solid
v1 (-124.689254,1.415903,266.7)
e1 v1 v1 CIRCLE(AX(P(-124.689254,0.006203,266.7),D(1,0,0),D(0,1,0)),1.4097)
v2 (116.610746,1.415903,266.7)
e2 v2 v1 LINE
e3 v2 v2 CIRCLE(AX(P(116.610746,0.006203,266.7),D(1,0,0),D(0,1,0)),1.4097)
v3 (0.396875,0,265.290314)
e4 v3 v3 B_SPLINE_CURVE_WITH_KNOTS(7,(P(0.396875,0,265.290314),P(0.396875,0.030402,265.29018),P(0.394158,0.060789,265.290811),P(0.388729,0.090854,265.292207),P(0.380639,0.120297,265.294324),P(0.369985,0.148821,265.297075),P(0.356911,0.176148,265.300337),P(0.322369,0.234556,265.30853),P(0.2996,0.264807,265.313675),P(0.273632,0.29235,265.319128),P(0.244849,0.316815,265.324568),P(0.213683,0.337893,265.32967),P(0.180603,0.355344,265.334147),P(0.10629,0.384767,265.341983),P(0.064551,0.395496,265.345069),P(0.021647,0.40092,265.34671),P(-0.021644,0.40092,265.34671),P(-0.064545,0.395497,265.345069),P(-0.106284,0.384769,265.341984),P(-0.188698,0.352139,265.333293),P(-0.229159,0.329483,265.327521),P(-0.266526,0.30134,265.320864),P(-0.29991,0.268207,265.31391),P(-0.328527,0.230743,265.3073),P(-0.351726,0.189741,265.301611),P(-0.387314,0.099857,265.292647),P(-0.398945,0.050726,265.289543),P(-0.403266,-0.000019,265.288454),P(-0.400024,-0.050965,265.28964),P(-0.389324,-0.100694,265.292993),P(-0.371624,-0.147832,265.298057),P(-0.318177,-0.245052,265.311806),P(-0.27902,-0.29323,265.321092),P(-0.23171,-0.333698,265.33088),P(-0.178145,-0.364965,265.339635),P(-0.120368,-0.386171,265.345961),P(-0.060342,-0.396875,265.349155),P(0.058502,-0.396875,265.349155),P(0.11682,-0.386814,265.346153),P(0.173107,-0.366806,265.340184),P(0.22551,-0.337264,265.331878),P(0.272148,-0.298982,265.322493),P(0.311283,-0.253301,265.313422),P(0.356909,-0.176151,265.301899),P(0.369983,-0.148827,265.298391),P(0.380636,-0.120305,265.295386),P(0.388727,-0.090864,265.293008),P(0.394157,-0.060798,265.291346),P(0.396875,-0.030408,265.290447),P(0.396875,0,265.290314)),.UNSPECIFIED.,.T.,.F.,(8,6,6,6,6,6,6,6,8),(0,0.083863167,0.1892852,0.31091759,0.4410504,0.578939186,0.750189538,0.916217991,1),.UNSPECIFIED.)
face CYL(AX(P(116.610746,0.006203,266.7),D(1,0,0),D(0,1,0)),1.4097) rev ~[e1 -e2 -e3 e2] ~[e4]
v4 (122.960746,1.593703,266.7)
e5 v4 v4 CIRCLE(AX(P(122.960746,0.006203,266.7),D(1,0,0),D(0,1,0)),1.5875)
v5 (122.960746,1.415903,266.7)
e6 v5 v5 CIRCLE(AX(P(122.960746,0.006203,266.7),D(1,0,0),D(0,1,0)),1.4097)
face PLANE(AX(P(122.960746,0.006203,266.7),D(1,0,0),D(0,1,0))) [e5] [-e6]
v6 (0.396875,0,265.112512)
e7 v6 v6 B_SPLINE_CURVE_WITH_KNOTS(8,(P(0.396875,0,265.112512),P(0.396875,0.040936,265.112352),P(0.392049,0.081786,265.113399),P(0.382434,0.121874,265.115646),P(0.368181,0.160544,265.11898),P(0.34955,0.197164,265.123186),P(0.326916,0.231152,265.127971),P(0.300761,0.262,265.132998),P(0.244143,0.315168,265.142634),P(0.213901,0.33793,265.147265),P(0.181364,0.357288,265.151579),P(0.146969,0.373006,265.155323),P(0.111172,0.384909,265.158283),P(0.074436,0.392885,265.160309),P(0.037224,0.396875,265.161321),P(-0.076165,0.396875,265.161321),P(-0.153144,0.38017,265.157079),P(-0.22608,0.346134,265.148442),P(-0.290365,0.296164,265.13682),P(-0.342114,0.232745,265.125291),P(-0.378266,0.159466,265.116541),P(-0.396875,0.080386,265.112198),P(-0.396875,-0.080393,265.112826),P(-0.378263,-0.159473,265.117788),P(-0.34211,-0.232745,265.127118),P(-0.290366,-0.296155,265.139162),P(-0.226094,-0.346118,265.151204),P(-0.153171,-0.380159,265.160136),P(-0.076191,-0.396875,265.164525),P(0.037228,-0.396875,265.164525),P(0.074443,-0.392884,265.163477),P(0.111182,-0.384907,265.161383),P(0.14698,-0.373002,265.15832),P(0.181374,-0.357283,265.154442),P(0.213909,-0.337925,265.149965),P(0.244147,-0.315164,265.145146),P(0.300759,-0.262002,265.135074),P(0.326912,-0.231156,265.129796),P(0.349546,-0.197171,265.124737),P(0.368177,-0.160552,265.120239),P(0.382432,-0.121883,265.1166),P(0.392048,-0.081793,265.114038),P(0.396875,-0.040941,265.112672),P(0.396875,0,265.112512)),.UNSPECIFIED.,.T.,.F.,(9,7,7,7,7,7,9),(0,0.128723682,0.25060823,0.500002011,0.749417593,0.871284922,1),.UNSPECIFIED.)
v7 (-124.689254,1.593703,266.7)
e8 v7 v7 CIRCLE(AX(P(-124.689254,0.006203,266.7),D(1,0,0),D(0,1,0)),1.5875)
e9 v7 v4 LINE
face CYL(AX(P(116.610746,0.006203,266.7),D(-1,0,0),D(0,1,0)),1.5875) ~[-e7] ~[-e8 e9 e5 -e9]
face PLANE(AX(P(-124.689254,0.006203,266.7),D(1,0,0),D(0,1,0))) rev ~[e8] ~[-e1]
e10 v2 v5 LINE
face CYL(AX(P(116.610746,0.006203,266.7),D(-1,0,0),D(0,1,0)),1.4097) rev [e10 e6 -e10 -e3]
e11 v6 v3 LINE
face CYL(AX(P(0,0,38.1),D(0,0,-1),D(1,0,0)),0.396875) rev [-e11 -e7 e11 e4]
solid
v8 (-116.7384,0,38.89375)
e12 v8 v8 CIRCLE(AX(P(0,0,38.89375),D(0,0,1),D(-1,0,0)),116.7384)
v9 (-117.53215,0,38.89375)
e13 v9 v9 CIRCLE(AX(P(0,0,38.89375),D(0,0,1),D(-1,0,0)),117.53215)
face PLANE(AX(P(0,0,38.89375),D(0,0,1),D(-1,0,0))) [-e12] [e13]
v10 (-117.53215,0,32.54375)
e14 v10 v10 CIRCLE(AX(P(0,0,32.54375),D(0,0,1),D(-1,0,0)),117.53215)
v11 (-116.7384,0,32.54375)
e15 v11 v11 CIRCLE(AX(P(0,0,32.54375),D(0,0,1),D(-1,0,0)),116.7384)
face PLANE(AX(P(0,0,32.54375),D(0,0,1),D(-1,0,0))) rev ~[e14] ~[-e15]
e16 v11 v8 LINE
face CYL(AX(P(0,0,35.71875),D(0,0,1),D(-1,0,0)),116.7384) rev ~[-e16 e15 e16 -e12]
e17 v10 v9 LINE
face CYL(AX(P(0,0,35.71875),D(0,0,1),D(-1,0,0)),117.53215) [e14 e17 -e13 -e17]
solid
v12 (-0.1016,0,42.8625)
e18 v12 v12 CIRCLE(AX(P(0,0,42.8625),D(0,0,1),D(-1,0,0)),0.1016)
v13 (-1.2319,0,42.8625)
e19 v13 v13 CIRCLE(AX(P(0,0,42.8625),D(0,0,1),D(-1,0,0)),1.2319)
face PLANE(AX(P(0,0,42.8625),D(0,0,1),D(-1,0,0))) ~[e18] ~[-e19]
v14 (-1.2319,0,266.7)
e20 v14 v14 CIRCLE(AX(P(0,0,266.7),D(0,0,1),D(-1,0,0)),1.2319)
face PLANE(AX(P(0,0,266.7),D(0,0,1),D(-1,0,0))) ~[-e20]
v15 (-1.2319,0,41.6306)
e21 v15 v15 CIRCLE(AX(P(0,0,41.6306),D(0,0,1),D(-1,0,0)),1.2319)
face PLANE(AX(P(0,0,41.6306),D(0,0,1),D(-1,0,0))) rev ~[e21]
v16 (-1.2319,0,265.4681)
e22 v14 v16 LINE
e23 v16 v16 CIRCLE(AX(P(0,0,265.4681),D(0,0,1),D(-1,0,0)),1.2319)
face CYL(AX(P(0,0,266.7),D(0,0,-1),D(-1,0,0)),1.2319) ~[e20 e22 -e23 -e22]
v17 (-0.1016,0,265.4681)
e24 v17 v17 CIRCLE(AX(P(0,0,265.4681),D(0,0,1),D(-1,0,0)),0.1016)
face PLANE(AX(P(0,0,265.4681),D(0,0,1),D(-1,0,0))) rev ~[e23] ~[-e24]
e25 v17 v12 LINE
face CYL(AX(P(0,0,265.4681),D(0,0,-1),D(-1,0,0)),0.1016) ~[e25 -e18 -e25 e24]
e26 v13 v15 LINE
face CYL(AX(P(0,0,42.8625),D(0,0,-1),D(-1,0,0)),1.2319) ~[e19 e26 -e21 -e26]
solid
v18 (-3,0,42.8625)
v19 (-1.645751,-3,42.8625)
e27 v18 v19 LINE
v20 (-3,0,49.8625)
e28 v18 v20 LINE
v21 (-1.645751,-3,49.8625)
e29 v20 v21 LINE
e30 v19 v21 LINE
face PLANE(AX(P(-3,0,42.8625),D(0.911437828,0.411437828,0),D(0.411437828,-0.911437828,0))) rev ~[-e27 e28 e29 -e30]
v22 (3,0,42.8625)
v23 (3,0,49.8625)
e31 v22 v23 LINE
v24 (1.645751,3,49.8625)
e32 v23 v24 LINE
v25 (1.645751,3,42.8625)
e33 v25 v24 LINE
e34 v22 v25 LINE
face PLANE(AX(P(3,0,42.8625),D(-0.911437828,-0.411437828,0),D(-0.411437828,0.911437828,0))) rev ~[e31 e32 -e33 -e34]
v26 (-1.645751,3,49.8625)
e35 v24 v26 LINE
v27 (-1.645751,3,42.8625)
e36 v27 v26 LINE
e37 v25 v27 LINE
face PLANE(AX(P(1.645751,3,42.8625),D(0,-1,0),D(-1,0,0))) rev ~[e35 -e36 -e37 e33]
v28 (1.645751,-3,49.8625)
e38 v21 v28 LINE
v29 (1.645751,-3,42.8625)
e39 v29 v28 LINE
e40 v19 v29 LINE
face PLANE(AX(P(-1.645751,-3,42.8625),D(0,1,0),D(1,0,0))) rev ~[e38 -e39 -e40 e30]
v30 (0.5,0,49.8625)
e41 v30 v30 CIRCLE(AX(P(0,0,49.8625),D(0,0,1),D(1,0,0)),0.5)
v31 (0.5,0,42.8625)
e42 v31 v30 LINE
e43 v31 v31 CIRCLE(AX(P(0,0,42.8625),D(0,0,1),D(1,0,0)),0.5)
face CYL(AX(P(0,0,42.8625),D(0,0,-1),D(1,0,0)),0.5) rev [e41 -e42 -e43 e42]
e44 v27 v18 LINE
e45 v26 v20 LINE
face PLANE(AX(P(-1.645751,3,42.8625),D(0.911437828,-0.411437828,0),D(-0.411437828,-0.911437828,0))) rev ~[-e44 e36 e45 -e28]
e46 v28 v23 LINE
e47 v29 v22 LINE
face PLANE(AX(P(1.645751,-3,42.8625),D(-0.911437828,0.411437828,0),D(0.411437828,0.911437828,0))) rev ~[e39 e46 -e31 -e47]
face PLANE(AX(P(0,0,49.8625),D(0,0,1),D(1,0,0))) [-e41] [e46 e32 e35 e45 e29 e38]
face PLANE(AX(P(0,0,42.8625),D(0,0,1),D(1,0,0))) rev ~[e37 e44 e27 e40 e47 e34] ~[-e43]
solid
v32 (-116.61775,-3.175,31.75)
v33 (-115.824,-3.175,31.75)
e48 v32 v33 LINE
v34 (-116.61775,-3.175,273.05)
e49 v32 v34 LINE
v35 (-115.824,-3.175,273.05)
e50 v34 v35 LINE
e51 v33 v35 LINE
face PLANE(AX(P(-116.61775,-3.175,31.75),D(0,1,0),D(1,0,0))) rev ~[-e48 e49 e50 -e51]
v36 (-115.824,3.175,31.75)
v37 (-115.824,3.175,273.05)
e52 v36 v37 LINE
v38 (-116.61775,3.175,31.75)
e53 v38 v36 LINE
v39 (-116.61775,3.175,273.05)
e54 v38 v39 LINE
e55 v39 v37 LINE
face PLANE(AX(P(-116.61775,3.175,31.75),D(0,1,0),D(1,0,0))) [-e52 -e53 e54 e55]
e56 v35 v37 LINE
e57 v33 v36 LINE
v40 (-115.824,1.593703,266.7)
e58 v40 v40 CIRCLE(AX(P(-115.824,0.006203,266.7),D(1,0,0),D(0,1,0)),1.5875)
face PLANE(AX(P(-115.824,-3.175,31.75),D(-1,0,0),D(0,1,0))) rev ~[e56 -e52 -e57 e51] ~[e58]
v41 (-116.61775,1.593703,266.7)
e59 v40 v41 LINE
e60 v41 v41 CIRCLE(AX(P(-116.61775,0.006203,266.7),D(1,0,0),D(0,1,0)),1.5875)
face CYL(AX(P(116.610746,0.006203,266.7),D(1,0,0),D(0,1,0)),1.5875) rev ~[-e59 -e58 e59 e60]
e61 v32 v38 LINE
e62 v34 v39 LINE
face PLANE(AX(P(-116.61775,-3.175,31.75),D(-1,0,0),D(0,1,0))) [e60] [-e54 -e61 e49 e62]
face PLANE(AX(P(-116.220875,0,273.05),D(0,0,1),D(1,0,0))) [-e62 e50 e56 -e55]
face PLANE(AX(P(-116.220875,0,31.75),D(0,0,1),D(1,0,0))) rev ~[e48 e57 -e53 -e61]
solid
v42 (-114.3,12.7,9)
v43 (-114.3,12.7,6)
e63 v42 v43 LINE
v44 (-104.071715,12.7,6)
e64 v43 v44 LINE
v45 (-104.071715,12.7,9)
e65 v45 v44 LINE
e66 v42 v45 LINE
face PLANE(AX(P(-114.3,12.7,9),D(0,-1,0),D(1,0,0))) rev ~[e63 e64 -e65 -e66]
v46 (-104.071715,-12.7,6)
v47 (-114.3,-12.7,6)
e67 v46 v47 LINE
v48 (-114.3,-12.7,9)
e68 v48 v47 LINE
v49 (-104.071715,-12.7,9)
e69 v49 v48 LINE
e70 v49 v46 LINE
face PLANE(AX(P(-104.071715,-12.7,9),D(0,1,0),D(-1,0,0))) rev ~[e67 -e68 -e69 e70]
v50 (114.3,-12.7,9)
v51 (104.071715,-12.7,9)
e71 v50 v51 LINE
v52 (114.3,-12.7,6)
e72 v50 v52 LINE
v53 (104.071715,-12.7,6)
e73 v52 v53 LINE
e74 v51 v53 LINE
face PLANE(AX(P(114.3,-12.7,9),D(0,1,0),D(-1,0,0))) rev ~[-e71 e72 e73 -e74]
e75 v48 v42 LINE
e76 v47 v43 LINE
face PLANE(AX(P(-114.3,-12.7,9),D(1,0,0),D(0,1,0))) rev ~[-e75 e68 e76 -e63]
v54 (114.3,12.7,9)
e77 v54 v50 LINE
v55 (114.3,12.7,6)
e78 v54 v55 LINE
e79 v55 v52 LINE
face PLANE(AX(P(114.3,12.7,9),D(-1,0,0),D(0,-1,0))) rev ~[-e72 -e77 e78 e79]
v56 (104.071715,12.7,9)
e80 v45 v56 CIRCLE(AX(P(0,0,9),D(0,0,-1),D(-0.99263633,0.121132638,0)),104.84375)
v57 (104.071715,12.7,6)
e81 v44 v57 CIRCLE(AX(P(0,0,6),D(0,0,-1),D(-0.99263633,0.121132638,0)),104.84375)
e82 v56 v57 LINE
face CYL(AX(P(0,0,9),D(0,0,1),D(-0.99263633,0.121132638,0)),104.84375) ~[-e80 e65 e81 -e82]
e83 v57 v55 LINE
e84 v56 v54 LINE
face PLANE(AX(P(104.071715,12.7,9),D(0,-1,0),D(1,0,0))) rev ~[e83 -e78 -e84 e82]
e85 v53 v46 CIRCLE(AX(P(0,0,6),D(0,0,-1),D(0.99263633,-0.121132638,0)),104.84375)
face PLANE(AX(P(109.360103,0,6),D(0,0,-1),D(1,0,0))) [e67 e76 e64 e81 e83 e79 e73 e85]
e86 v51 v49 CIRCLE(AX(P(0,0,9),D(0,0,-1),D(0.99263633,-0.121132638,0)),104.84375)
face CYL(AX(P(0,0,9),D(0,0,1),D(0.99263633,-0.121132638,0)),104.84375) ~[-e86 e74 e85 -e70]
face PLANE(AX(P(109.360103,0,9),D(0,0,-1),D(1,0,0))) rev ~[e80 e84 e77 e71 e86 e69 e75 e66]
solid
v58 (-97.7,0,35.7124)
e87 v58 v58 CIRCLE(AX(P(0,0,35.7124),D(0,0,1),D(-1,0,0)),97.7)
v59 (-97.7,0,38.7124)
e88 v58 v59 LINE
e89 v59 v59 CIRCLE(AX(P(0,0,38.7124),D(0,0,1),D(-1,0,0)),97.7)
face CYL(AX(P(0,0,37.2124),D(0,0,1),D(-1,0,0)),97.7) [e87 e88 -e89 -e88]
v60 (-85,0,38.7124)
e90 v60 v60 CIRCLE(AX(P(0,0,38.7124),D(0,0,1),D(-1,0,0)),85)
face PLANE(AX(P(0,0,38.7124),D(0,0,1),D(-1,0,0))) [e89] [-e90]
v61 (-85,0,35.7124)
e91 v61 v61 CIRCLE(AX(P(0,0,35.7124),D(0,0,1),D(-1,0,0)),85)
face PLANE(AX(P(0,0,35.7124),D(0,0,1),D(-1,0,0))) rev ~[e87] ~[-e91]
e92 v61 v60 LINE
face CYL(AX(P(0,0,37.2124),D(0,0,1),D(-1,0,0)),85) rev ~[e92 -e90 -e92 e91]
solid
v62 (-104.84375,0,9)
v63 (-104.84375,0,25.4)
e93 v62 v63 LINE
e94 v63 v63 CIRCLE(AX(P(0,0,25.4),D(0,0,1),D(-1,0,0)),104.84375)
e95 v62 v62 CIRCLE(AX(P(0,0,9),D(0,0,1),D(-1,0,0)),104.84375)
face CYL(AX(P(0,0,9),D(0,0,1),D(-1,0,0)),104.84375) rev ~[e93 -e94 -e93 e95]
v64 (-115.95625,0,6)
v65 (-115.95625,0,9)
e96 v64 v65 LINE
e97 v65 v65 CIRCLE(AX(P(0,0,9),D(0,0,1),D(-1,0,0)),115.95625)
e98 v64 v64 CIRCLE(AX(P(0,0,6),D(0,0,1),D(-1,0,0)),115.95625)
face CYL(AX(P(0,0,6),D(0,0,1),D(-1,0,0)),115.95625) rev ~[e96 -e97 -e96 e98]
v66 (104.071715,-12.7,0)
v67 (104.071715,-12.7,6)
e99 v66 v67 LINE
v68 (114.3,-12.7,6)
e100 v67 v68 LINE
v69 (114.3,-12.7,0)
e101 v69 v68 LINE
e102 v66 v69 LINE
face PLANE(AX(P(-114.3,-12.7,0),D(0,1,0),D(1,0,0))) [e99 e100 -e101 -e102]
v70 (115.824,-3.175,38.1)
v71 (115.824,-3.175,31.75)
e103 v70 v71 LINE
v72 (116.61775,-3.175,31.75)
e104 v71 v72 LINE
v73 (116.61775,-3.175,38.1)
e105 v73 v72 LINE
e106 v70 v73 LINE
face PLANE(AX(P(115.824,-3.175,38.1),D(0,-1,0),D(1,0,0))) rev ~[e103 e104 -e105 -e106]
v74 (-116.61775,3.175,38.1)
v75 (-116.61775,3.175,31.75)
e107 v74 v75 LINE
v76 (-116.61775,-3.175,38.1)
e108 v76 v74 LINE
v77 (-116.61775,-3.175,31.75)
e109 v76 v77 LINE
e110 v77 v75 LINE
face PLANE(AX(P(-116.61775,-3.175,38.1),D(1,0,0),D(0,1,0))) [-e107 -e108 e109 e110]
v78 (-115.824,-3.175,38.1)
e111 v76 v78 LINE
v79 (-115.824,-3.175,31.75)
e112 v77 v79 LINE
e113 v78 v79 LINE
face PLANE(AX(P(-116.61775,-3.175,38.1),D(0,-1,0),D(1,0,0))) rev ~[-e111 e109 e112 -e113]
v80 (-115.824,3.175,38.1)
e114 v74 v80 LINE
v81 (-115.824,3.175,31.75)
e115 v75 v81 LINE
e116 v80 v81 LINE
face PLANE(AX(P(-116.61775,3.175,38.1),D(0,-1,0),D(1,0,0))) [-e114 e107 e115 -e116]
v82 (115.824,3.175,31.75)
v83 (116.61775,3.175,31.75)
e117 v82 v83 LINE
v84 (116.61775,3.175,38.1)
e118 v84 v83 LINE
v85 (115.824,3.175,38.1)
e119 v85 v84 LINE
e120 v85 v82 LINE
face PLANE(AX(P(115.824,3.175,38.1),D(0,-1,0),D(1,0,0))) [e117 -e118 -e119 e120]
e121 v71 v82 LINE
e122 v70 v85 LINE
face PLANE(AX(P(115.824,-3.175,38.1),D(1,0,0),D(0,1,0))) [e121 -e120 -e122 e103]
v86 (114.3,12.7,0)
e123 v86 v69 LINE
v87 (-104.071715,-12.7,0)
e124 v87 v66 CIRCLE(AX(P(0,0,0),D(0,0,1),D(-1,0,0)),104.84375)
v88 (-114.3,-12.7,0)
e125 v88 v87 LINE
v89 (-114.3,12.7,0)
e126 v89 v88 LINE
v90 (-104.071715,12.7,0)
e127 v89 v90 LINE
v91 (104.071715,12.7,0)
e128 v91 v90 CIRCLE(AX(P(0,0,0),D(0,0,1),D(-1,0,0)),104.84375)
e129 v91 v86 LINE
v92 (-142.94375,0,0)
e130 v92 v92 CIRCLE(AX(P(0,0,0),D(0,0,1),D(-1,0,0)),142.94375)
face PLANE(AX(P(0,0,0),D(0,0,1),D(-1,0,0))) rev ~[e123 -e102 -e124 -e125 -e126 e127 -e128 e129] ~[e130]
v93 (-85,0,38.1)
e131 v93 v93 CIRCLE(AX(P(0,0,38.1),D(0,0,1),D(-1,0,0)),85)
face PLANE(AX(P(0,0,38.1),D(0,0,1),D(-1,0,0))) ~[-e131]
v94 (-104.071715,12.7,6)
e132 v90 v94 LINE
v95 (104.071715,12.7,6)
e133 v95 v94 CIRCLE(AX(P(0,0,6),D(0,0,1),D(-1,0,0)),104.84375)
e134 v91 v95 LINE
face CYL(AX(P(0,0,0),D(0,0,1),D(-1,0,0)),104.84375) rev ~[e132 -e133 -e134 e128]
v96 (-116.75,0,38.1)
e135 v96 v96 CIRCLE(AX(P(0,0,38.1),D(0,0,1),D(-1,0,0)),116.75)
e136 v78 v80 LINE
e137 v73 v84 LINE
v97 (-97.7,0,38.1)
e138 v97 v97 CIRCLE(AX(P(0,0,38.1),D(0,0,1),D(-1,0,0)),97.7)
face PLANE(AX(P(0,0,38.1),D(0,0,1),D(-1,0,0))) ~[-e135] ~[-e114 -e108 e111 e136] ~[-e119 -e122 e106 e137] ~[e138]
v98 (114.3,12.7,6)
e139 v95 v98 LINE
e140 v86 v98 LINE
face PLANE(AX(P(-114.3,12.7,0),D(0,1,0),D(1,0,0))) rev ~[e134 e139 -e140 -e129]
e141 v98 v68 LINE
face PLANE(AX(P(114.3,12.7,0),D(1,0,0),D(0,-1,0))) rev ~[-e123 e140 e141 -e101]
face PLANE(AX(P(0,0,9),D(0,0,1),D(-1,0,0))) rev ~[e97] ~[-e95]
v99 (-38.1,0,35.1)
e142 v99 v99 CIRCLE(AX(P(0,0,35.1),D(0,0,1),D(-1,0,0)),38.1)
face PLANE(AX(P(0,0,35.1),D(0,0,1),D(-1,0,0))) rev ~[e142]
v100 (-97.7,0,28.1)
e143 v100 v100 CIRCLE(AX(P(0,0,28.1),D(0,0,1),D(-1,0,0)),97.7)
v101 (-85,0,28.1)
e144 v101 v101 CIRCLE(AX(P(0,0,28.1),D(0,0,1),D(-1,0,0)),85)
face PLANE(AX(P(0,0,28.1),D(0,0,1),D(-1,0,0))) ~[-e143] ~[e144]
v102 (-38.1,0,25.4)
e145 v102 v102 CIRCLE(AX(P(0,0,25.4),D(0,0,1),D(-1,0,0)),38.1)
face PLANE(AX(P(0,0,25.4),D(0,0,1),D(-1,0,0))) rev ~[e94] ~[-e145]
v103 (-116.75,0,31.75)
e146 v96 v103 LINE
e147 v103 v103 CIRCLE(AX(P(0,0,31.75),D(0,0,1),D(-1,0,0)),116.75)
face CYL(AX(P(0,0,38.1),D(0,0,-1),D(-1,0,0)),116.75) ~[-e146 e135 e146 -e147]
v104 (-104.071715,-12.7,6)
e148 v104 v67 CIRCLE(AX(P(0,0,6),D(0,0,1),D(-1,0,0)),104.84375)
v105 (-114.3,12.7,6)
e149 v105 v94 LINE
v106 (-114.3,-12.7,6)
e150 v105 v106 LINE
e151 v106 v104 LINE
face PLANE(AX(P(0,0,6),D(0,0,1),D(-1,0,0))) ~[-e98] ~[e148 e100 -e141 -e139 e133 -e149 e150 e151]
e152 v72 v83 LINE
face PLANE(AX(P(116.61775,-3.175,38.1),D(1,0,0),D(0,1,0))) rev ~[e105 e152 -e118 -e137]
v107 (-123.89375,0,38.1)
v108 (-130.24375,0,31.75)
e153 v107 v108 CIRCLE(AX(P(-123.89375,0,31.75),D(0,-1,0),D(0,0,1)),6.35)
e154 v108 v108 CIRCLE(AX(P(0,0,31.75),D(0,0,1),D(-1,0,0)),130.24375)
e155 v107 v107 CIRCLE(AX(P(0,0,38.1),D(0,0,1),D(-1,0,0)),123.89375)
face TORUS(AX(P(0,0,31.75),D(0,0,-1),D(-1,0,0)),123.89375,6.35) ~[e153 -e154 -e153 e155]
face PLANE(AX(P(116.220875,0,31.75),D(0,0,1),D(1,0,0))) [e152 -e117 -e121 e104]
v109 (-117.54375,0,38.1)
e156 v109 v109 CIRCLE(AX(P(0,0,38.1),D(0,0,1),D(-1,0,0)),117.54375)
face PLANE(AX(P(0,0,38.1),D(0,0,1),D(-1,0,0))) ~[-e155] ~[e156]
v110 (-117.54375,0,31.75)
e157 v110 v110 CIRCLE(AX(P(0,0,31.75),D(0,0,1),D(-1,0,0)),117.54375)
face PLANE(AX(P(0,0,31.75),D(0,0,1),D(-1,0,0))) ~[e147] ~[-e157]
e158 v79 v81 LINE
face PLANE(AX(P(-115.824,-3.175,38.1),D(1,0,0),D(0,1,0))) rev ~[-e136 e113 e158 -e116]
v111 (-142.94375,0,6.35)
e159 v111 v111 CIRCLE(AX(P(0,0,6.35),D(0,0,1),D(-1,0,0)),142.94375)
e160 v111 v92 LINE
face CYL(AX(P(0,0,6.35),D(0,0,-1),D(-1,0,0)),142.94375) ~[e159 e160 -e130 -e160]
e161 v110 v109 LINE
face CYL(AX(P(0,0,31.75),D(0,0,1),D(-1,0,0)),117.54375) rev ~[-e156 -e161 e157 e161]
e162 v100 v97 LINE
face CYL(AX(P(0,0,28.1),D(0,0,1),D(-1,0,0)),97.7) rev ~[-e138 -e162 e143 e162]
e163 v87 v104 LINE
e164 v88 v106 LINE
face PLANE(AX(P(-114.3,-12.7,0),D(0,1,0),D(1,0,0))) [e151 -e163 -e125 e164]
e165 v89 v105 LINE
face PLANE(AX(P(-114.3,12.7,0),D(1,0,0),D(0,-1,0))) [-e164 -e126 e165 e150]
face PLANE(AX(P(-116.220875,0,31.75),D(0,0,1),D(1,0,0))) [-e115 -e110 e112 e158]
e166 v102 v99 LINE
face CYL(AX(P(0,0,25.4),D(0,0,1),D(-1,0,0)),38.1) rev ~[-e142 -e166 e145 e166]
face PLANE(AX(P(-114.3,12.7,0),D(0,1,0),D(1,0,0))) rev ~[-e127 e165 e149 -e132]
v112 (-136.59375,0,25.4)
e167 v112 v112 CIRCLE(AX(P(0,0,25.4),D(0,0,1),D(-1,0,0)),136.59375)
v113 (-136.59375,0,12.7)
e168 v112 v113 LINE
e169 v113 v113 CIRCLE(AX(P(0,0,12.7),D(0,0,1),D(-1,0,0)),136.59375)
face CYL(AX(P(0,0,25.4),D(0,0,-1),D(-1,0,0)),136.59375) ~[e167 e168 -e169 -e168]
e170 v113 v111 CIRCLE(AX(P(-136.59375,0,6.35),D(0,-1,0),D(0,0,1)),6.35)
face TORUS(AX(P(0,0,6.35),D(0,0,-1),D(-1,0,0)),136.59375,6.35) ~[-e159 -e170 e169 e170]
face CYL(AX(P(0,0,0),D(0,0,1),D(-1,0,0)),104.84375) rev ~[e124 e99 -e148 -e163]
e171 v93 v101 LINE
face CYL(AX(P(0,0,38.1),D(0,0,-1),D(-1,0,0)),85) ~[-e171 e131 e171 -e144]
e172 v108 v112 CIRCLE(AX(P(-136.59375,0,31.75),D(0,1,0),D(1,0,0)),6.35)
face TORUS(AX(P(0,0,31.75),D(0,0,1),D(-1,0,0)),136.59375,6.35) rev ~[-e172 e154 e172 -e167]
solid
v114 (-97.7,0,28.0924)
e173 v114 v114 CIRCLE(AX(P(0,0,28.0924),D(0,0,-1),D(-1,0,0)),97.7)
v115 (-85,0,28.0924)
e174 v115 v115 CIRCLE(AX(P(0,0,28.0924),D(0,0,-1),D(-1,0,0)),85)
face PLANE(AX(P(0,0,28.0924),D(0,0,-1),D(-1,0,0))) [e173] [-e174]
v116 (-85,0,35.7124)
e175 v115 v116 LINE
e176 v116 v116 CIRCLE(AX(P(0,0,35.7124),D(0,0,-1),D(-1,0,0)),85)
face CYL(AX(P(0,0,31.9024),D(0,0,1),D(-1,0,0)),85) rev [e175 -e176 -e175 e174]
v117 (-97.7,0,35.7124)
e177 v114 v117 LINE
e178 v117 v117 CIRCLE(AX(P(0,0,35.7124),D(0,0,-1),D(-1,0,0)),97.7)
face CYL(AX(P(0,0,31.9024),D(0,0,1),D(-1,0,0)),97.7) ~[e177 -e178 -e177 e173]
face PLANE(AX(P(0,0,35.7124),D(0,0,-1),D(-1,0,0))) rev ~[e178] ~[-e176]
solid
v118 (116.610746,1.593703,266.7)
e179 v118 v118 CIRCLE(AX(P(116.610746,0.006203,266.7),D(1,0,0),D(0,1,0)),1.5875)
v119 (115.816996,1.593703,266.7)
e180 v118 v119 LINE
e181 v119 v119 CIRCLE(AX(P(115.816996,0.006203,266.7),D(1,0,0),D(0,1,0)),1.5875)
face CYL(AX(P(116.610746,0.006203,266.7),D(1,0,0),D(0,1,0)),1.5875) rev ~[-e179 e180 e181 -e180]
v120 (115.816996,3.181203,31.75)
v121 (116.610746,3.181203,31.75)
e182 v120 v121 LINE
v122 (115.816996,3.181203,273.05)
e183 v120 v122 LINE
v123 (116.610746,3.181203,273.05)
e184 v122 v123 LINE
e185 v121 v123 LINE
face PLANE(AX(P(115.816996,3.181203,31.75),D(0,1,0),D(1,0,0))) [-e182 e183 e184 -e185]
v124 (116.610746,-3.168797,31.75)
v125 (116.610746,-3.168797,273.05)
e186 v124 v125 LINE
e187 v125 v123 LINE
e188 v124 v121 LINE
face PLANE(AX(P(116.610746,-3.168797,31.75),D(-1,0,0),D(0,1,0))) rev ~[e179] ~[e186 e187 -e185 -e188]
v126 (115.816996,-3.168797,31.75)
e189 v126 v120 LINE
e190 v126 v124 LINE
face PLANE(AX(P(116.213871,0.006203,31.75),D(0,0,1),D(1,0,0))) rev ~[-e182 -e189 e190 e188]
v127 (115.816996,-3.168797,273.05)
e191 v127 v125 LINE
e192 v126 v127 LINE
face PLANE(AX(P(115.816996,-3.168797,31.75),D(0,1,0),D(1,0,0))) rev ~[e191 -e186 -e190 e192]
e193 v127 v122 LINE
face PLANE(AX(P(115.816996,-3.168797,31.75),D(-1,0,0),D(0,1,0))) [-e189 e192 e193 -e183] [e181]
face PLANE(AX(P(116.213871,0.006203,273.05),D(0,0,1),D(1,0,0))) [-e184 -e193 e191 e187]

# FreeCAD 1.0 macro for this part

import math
import FreeCAD as App
import Part
import Sketcher
from FreeCAD import Vector
Q = App.Units.Quantity


def add_polygon(sketch, points):
    """Adds a closed chain of lines whose ends are joined by coincident constraints."""
    first, n = sketch.GeometryCount, len(points)
    for a, b in zip(points, points[1:] + points[:1]):
        sketch.addGeometry(Part.LineSegment(App.Vector(*a, 0), App.Vector(*b, 0)), False)
    for i in range(n):
        sketch.addConstraint(Sketcher.Constraint("Coincident", first + i, 2, first + (i + 1) % n, 1))

doc = App.newDocument("Part")
body = doc.addObject("PartDesign::Body", "Body")

# Sketch on XZ plane
sketch1 = doc.addObject("Sketcher::SketchObject", "Sketch")
body.addObject(sketch1)
sketch1.AttachmentSupport = (doc.XZ_Plane, [""])
sketch1.MapMode = "FlatFace"
sketch1.addGeometry(Part.LineSegment(Vector(0, 35.1, 0), Vector(0, 38.1, 0)), False)
sketch1.addGeometry(Part.LineSegment(Vector(0, 38.1, 0), Vector(-85, 38.1, 0)), False)
sketch1.addGeometry(Part.LineSegment(Vector(-85, 38.1, 0), Vector(-85, 28.1, 0)), False)
sketch1.addGeometry(Part.LineSegment(Vector(-85, 28.1, 0), Vector(-97.7, 28.1, 0)), False)
sketch1.addGeometry(Part.LineSegment(Vector(-97.7, 28.1, 0), Vector(-97.7, 38.1, 0)), False)
sketch1.addGeometry(Part.LineSegment(Vector(-97.7, 38.1, 0), Vector(-116.8, 38.1, 0)), False)
sketch1.addGeometry(Part.LineSegment(Vector(-116.8, 38.1, 0), Vector(-116.8, 31.8, 0)), False)
sketch1.addGeometry(Part.LineSegment(Vector(-116.8, 31.8, 0), Vector(-117.5, 31.8, 0)), False)
sketch1.addGeometry(Part.LineSegment(Vector(-117.5, 31.8, 0), Vector(-117.5, 38.1, 0)), False)
sketch1.addGeometry(Part.LineSegment(Vector(-117.5, 38.1, 0), Vector(-123.9, 38.1, 0)), False)
sketch1.addGeometry(Part.ArcOfCircle(Part.Circle(Vector(-123.9, 31.8, 0), Vector(0, 0, 1), 6.3), math.radians(90), math.radians(180)), False)
sketch1.addGeometry(Part.ArcOfCircle(Part.Circle(Vector(-136.6, 31.8, 0), Vector(0, 0, 1), 6.3), math.radians(-90), math.radians(0)), False)
sketch1.addGeometry(Part.LineSegment(Vector(-136.6, 25.4, 0), Vector(-136.6, 12.7, 0)), False)
sketch1.addGeometry(Part.ArcOfCircle(Part.Circle(Vector(-136.6, 6.3, 0), Vector(0, 0, 1), 6.3), math.radians(90), math.radians(180)), False)
sketch1.addGeometry(Part.LineSegment(Vector(-142.9, 6.3, 0), Vector(-142.9, 0, 0)), False)
sketch1.addGeometry(Part.LineSegment(Vector(-142.9, 0, 0), Vector(-104.8, 0, 0)), False)
sketch1.addGeometry(Part.LineSegment(Vector(-104.8, 0, 0), Vector(-104.8, 6, 0)), False)
sketch1.addGeometry(Part.LineSegment(Vector(-104.8, 6, 0), Vector(-116, 6, 0)), False)
sketch1.addGeometry(Part.LineSegment(Vector(-116, 6, 0), Vector(-116, 9, 0)), False)
sketch1.addGeometry(Part.LineSegment(Vector(-116, 9, 0), Vector(-104.8, 9, 0)), False)
sketch1.addGeometry(Part.LineSegment(Vector(-104.8, 9, 0), Vector(-104.8, 25.4, 0)), False)
sketch1.addGeometry(Part.LineSegment(Vector(-104.8, 25.4, 0), Vector(-38.1, 25.4, 0)), False)
sketch1.addGeometry(Part.LineSegment(Vector(-38.1, 25.4, 0), Vector(-38.1, 35.1, 0)), False)
sketch1.addGeometry(Part.LineSegment(Vector(-38.1, 35.1, 0), Vector(0, 35.1, 0)), False)
sketch1.addConstraint(Sketcher.Constraint("Coincident", 0, 2, 1, 1))
sketch1.addConstraint(Sketcher.Constraint("Coincident", 1, 2, 2, 1))
sketch1.addConstraint(Sketcher.Constraint("Coincident", 2, 2, 3, 1))
sketch1.addConstraint(Sketcher.Constraint("Coincident", 3, 2, 4, 1))
sketch1.addConstraint(Sketcher.Constraint("Coincident", 4, 2, 5, 1))
sketch1.addConstraint(Sketcher.Constraint("Coincident", 5, 2, 6, 1))
sketch1.addConstraint(Sketcher.Constraint("Coincident", 6, 2, 7, 1))
sketch1.addConstraint(Sketcher.Constraint("Coincident", 7, 2, 8, 1))
sketch1.addConstraint(Sketcher.Constraint("Coincident", 8, 2, 9, 1))
sketch1.addConstraint(Sketcher.Constraint("Tangent", 9, 2, 10, 1))
sketch1.addConstraint(Sketcher.Constraint("Tangent", 10, 2, 11, 2))
sketch1.addConstraint(Sketcher.Constraint("Coincident", 11, 1, 12, 1))
sketch1.addConstraint(Sketcher.Constraint("Coincident", 12, 2, 13, 1))
sketch1.addConstraint(Sketcher.Constraint("Tangent", 13, 2, 14, 1))
sketch1.addConstraint(Sketcher.Constraint("Coincident", 14, 2, 15, 1))
sketch1.addConstraint(Sketcher.Constraint("Coincident", 15, 2, 16, 1))
sketch1.addConstraint(Sketcher.Constraint("Coincident", 16, 2, 17, 1))
sketch1.addConstraint(Sketcher.Constraint("Coincident", 17, 2, 18, 1))
sketch1.addConstraint(Sketcher.Constraint("Coincident", 18, 2, 19, 1))
sketch1.addConstraint(Sketcher.Constraint("Coincident", 19, 2, 20, 1))
sketch1.addConstraint(Sketcher.Constraint("Coincident", 20, 2, 21, 1))
sketch1.addConstraint(Sketcher.Constraint("Coincident", 21, 2, 22, 1))
sketch1.addConstraint(Sketcher.Constraint("Coincident", 22, 2, 23, 1))
sketch1.addConstraint(Sketcher.Constraint("Coincident", 23, 2, 0, 1))
sketch1.addConstraint(Sketcher.Constraint("Vertical", 0))
sketch1.addConstraint(Sketcher.Constraint("Horizontal", 1))
sketch1.addConstraint(Sketcher.Constraint("Vertical", 2))
sketch1.addConstraint(Sketcher.Constraint("Horizontal", 3))
sketch1.addConstraint(Sketcher.Constraint("Vertical", 4))
sketch1.addConstraint(Sketcher.Constraint("Horizontal", 5))
sketch1.addConstraint(Sketcher.Constraint("Vertical", 6))
sketch1.addConstraint(Sketcher.Constraint("Horizontal", 7))
sketch1.addConstraint(Sketcher.Constraint("Vertical", 8))
sketch1.addConstraint(Sketcher.Constraint("Horizontal", 9))
sketch1.addConstraint(Sketcher.Constraint("Vertical", 12))
sketch1.addConstraint(Sketcher.Constraint("Vertical", 14))
sketch1.addConstraint(Sketcher.Constraint("Horizontal", 15))
sketch1.addConstraint(Sketcher.Constraint("Vertical", 16))
sketch1.addConstraint(Sketcher.Constraint("Horizontal", 17))
sketch1.addConstraint(Sketcher.Constraint("Vertical", 18))
sketch1.addConstraint(Sketcher.Constraint("Horizontal", 19))
sketch1.addConstraint(Sketcher.Constraint("Vertical", 20))
sketch1.addConstraint(Sketcher.Constraint("Horizontal", 21))
sketch1.addConstraint(Sketcher.Constraint("Vertical", 22))
sketch1.addConstraint(Sketcher.Constraint("Horizontal", 23))
sketch1.addConstraint(Sketcher.Constraint("Equal", 10, 11))
sketch1.addConstraint(Sketcher.Constraint("Equal", 11, 13))
sketch1.addConstraint(Sketcher.Constraint("PointOnObject", 0, 2, -2))
sketch1.addConstraint(Sketcher.Constraint("PointOnObject", 14, 2, -1))
sketch1.addConstraint(Sketcher.Constraint("Horizontal", 10, 3, 11, 3))
sketch1.addConstraint(Sketcher.Constraint("Horizontal", 1, 2, 4, 2))
sketch1.addConstraint(Sketcher.Constraint("Horizontal", 11, 3, 6, 2))
sketch1.addConstraint(Sketcher.Constraint("Horizontal", 5, 2, 8, 2))
sketch1.addConstraint(Sketcher.Constraint("Horizontal", 11, 1, 20, 2))
sketch1.addConstraint(Sketcher.Constraint("Vertical", 11, 3, 13, 3))
sketch1.addConstraint(Sketcher.Constraint("Vertical", 13, 3, 11, 1))
sketch1.addConstraint(Sketcher.Constraint("Vertical", 16, 2, 19, 2))
sketch1.addConstraint(Sketcher.Constraint("Equal", 15, 23))
sketch1.addConstraint(Sketcher.Constraint("Equal", 9, 6))
sketch1.addConstraint(Sketcher.Constraint("Equal", 3, 12))
sketch1.addConstraint(Sketcher.Constraint("Equal", 8, 14))
sketch1.addConstraint(Sketcher.Constraint("Equal", 0, 18))
sketch1.addConstraint(Sketcher.Constraint("Radius", 10, Q("0.25 in")))
sketch1.addConstraint(Sketcher.Constraint("DistanceX", 3, 2, 3, 1, Q("0.5 in")))
sketch1.addConstraint(Sketcher.Constraint("DistanceX", 15, 1, 15, 2, Q("1.5 in")))
sketch1.addConstraint(Sketcher.Constraint("DistanceX", 5, 2, 5, 1, Q("0.75 in")))
sketch1.addConstraint(Sketcher.Constraint("DistanceX", 7, 2, 7, 1, Q("0.03125 in")))
sketch1.addConstraint(Sketcher.Constraint("DistanceX", 17, 2, 17, 1, Q("0.4375 in")))
sketch1.addConstraint(Sketcher.Constraint("DistanceX", 1, 2, 1, 1, 85.0))
sketch1.addConstraint(Sketcher.Constraint("DistanceY", 0, 1, 0, 2, 3.0))
sketch1.addConstraint(Sketcher.Constraint("DistanceY", 2, 2, 2, 1, 10.0))
sketch1.addConstraint(Sketcher.Constraint("DistanceY", 16, 1, 16, 2, 6.0))
revolution = doc.addObject("PartDesign::Revolution", "Revolution")
body.addObject(revolution)
revolution.Profile = sketch1
revolution.ReferenceAxis = (sketch1, ["V_Axis"])
revolution.Angle = 360

# Sketch on XY plane
sketch2 = doc.addObject("Sketcher::SketchObject", "Sketch001")
body.addObject(sketch2)
sketch2.AttachmentSupport = (doc.XY_Plane, [""])
sketch2.MapMode = "FlatFace"
add_polygon(sketch2, [(-114, -13), (-114, 13), (114, 13), (114, -13)])  # lines 0-3
sketch2.addConstraint(Sketcher.Constraint("Vertical", 0))
sketch2.addConstraint(Sketcher.Constraint("Horizontal", 1))
sketch2.addConstraint(Sketcher.Constraint("Vertical", 2))
sketch2.addConstraint(Sketcher.Constraint("Horizontal", 3))
sketch2.addConstraint(Sketcher.Constraint("Symmetric", 0, 2, 2, 2, -1, 1))
sketch2.addConstraint(Sketcher.Constraint("DistanceX", 1, 1, 1, 2, Q("9 in")))
sketch2.addConstraint(Sketcher.Constraint("DistanceY", 0, 1, 0, 2, Q("1 in")))
pocket1 = doc.addObject("PartDesign::Pocket", "Pocket")
body.addObject(pocket1)
pocket1.Profile = sketch2
pocket1.Length = 9
pocket1.Reversed = True

# Sketch on XY plane
sketch3 = doc.addObject("Sketcher::SketchObject", "Sketch002")
body.addObject(sketch3)
sketch3.AttachmentSupport = (doc.XY_Plane, [""])
sketch3.MapMode = "FlatFace"
sketch3.AttachmentOffset = App.Placement(Vector(0, 0, 1.5 * 25.4), App.Rotation())
add_polygon(sketch3, [(-116.6, 3.2), (-116.6, -3.2), (-115.8, -3.2), (-115.8, 3.2)])  # lines 0-3
add_polygon(sketch3, [(115.8, 3.2), (115.8, -3.2), (116.6, -3.2), (116.6, 3.2)])  # lines 4-7
sketch3.addConstraint(Sketcher.Constraint("Vertical", 0))
sketch3.addConstraint(Sketcher.Constraint("Horizontal", 1))
sketch3.addConstraint(Sketcher.Constraint("Vertical", 2))
sketch3.addConstraint(Sketcher.Constraint("Horizontal", 3))
sketch3.addConstraint(Sketcher.Constraint("Vertical", 4))
sketch3.addConstraint(Sketcher.Constraint("Horizontal", 5))
sketch3.addConstraint(Sketcher.Constraint("Vertical", 6))
sketch3.addConstraint(Sketcher.Constraint("Horizontal", 7))
sketch3.addConstraint(Sketcher.Constraint("Symmetric", 2, 2, 4, 2, -1, 1))
sketch3.addConstraint(Sketcher.Constraint("Symmetric", 0, 2, 6, 2, -1, 1))
sketch3.addConstraint(Sketcher.Constraint("Horizontal", 1, 2, 4, 2))
sketch3.addConstraint(Sketcher.Constraint("DistanceY", 0, 2, 0, 1, Q("0.25 in")))
sketch3.addConstraint(Sketcher.Constraint("DistanceX", 1, 1, 1, 2, Q("0.03125 in")))
sketch3.addConstraint(Sketcher.Constraint("DistanceX", 1, 2, -1, 1, Q("4.56 in")))
pocket2 = doc.addObject("PartDesign::Pocket", "Pocket001")
body.addObject(pocket2)
pocket2.Profile = sketch3
pocket2.Length = Q("0.25 in")
body2 = doc.addObject("PartDesign::Body", "Body001")

# Sketch on XZ plane
sketch4 = doc.addObject("Sketcher::SketchObject", "Sketch003")
body2.addObject(sketch4)
sketch4.AttachmentSupport = (doc.getObject("XZ_Plane001"), [""])
sketch4.MapMode = "FlatFace"
add_polygon(sketch4, [(-98, 36), (-98, 28), (-85, 28), (-85, 36)])  # lines 0-3
sketch4.addConstraint(Sketcher.Constraint("Vertical", 0))
sketch4.addConstraint(Sketcher.Constraint("Horizontal", 1))
sketch4.addConstraint(Sketcher.Constraint("Vertical", 2))
sketch4.addConstraint(Sketcher.Constraint("Horizontal", 3))
sketch4.addConstraint(Sketcher.Constraint("DistanceX", 1, 1, 1, 2, Q("0.5 in")))
sketch4.addConstraint(Sketcher.Constraint("DistanceY", 0, 2, 0, 1, Q("0.3 in")))
sketch4.addConstraint(Sketcher.Constraint("DistanceY", -1, 1, 0, 2, Q("1.106 in")))
sketch4.addConstraint(Sketcher.Constraint("DistanceX", 0, 2, -1, 1, 97.7))
revolution2 = doc.addObject("PartDesign::Revolution", "Revolution001")
body2.addObject(revolution2)
revolution2.Profile = sketch4
revolution2.ReferenceAxis = (sketch4, ["V_Axis"])
revolution2.Angle = 360
body3 = doc.addObject("PartDesign::Body", "Body002")

# Sketch on XZ plane
sketch5 = doc.addObject("Sketcher::SketchObject", "Sketch004")
body3.addObject(sketch5)
sketch5.AttachmentSupport = (doc.getObject("XZ_Plane002"), [""])
sketch5.MapMode = "FlatFace"
add_polygon(sketch5, [(-97.7, 38.7), (-97.7, 35.7), (-85, 35.7), (-85, 38.7)])  # lines 0-3
sketch5.addConstraint(Sketcher.Constraint("Vertical", 0))
sketch5.addConstraint(Sketcher.Constraint("Horizontal", 1))
sketch5.addConstraint(Sketcher.Constraint("Vertical", 2))
sketch5.addConstraint(Sketcher.Constraint("Horizontal", 3))
sketch5.addConstraint(Sketcher.Constraint("DistanceX", 1, 1, 1, 2, Q("0.5 in")))
sketch5.addConstraint(Sketcher.Constraint("DistanceY", -1, 1, 0, 2, Q("1.406 in")))
sketch5.addConstraint(Sketcher.Constraint("DistanceY", 0, 2, 0, 1, 3.0))
sketch5.addConstraint(Sketcher.Constraint("DistanceX", 0, 2, -1, 1, 97.7))
revolution3 = doc.addObject("PartDesign::Revolution", "Revolution002")
body3.addObject(revolution3)
revolution3.Profile = sketch5
revolution3.ReferenceAxis = (sketch5, ["V_Axis"])
revolution3.Angle = 360
body4 = doc.addObject("PartDesign::Body", "Body003")

# Sketch on XZ plane
sketch6 = doc.addObject("Sketcher::SketchObject", "Sketch005")
body4.addObject(sketch6)
sketch6.AttachmentSupport = (doc.getObject("XZ_Plane003"), [""])
sketch6.MapMode = "FlatFace"
add_polygon(sketch6, [(-117.5, 38.9), (-117.5, 32.5), (-116.7, 32.5), (-116.7, 38.9)])  # lines 0-3
sketch6.addConstraint(Sketcher.Constraint("Vertical", 0))
sketch6.addConstraint(Sketcher.Constraint("Horizontal", 1))
sketch6.addConstraint(Sketcher.Constraint("Vertical", 2))
sketch6.addConstraint(Sketcher.Constraint("Horizontal", 3))
sketch6.addConstraint(Sketcher.Constraint("DistanceY", 0, 2, 0, 1, Q("0.25 in")))
sketch6.addConstraint(Sketcher.Constraint("DistanceX", 1, 1, 1, 2, Q("0.03125 in")))
sketch6.addConstraint(Sketcher.Constraint("DistanceY", -1, 1, 0, 2, Q("1.28125 in")))
sketch6.addConstraint(Sketcher.Constraint("DistanceX", 1, 2, -1, 1, Q("4.596 in")))
revolution4 = doc.addObject("PartDesign::Revolution", "Revolution003")
body4.addObject(revolution4)
revolution4.Profile = sketch6
revolution4.ReferenceAxis = (sketch6, ["V_Axis"])
revolution4.Angle = 360
body5 = doc.addObject("PartDesign::Body", "Body004")

# Sketch on XY plane
sketch7 = doc.addObject("Sketcher::SketchObject", "Sketch006")
body5.addObject(sketch7)
sketch7.AttachmentSupport = (doc.getObject("XY_Plane004"), [""])
sketch7.MapMode = "FlatFace"
sketch7.AttachmentOffset = App.Placement(Vector(0, 0, 9), App.Rotation())
sketch7.addGeometry(Part.LineSegment(Vector(114, -13, 0), Vector(104, -13, 0)), False)
sketch7.addGeometry(Part.ArcOfCircle(Part.Circle(Vector(0, 0, 0), Vector(0, 0, 1), 105), math.radians(-173), math.radians(-7)), False)
sketch7.addGeometry(Part.LineSegment(Vector(-104, -13, 0), Vector(-114, -13, 0)), False)
sketch7.addGeometry(Part.LineSegment(Vector(-114, -13, 0), Vector(-114, 13, 0)), False)
sketch7.addGeometry(Part.LineSegment(Vector(-114, 13, 0), Vector(-104, 13, 0)), False)
sketch7.addGeometry(Part.ArcOfCircle(Part.Circle(Vector(0, 0, 0), Vector(0, 0, 1), 105), math.radians(7), math.radians(173)), False)
sketch7.addGeometry(Part.LineSegment(Vector(104, 13, 0), Vector(114, 13, 0)), False)
sketch7.addGeometry(Part.LineSegment(Vector(114, 13, 0), Vector(114, -13, 0)), False)
sketch7.addConstraint(Sketcher.Constraint("Coincident", 0, 2, 1, 2))
sketch7.addConstraint(Sketcher.Constraint("Coincident", 1, 1, 2, 1))
sketch7.addConstraint(Sketcher.Constraint("Coincident", 2, 2, 3, 1))
sketch7.addConstraint(Sketcher.Constraint("Coincident", 3, 2, 4, 1))
sketch7.addConstraint(Sketcher.Constraint("Coincident", 4, 2, 5, 2))
sketch7.addConstraint(Sketcher.Constraint("Coincident", 5, 1, 6, 1))
sketch7.addConstraint(Sketcher.Constraint("Coincident", 6, 2, 7, 1))
sketch7.addConstraint(Sketcher.Constraint("Coincident", 7, 2, 0, 1))
sketch7.addConstraint(Sketcher.Constraint("Horizontal", 0))
sketch7.addConstraint(Sketcher.Constraint("Horizontal", 2))
sketch7.addConstraint(Sketcher.Constraint("Vertical", 3))
sketch7.addConstraint(Sketcher.Constraint("Horizontal", 4))
sketch7.addConstraint(Sketcher.Constraint("Horizontal", 6))
sketch7.addConstraint(Sketcher.Constraint("Vertical", 7))
sketch7.addConstraint(Sketcher.Constraint("Coincident", 1, 3, -1, 1))
sketch7.addConstraint(Sketcher.Constraint("Coincident", 5, 3, -1, 1))
sketch7.addConstraint(Sketcher.Constraint("Equal", 1, 5))
sketch7.addConstraint(Sketcher.Constraint("Symmetric", 2, 2, 6, 2, -1, 1))
sketch7.addConstraint(Sketcher.Constraint("Horizontal", 0, 2, 1, 1))
sketch7.addConstraint(Sketcher.Constraint("Horizontal", 4, 2, 5, 1))
sketch7.addConstraint(Sketcher.Constraint("DistanceY", 3, 1, 3, 2, Q("1 in")))
sketch7.addConstraint(Sketcher.Constraint("DistanceX", 2, 2, -1, 1, Q("4.5 in")))
sketch7.addConstraint(Sketcher.Constraint("Radius", 1, 104.84375))
pad1 = doc.addObject("PartDesign::Pad", "Pad")
body5.addObject(pad1)
pad1.Profile = sketch7
pad1.Length = 3
pad1.Reversed = True
body6 = doc.addObject("PartDesign::Body", "Body005")

# Sketch on XY plane
sketch8 = doc.addObject("Sketcher::SketchObject", "Sketch007")
body6.addObject(sketch8)
sketch8.AttachmentSupport = (doc.getObject("XY_Plane005"), [""])
sketch8.MapMode = "FlatFace"
sketch8.AttachmentOffset = App.Placement(Vector(0, 0, 1.25 * 25.4), App.Rotation())
add_polygon(sketch8, [(115.8, 3.2), (115.8, -3.2), (116.6, -3.2), (116.6, 3.2)])  # lines 0-3
sketch8.addConstraint(Sketcher.Constraint("Vertical", 0))
sketch8.addConstraint(Sketcher.Constraint("Horizontal", 1))
sketch8.addConstraint(Sketcher.Constraint("Vertical", 2))
sketch8.addConstraint(Sketcher.Constraint("Horizontal", 3))
sketch8.addConstraint(Sketcher.Constraint("DistanceY", 0, 2, 0, 1, Q("0.25 in")))
sketch8.addConstraint(Sketcher.Constraint("DistanceX", 1, 1, 1, 2, Q("0.03125 in")))
sketch8.addConstraint(Sketcher.Constraint("DistanceX", -1, 1, 0, 2, 115.816996))
sketch8.addConstraint(Sketcher.Constraint("DistanceY", 0, 2, -1, 1, 3.168797))
pad2 = doc.addObject("PartDesign::Pad", "Pad001")
body6.addObject(pad2)
pad2.Profile = sketch8
pad2.Length = Q("9.5 in")
body7 = doc.addObject("PartDesign::Body", "Body006")

# Sketch on XY plane
sketch9 = doc.addObject("Sketcher::SketchObject", "Sketch008")
body7.addObject(sketch9)
sketch9.AttachmentSupport = (doc.getObject("XY_Plane006"), [""])
sketch9.MapMode = "FlatFace"
sketch9.AttachmentOffset = App.Placement(Vector(0, 0, 1.25 * 25.4), App.Rotation())
add_polygon(sketch9, [(-116.6, 3.2), (-116.6, -3.2), (-115.8, -3.2), (-115.8, 3.2)])  # lines 0-3
sketch9.addConstraint(Sketcher.Constraint("Vertical", 0))
sketch9.addConstraint(Sketcher.Constraint("Horizontal", 1))
sketch9.addConstraint(Sketcher.Constraint("Vertical", 2))
sketch9.addConstraint(Sketcher.Constraint("Horizontal", 3))
sketch9.addConstraint(Sketcher.Constraint("DistanceY", 0, 2, 0, 1, Q("0.25 in")))
sketch9.addConstraint(Sketcher.Constraint("DistanceX", 1, 1, 1, 2, Q("0.03125 in")))
sketch9.addConstraint(Sketcher.Constraint("DistanceX", 1, 2, -1, 1, Q("4.56 in")))
sketch9.addConstraint(Sketcher.Constraint("DistanceY", 0, 2, -1, 1, Q("0.125 in")))
pad3 = doc.addObject("PartDesign::Pad", "Pad002")
body7.addObject(pad3)
pad3.Profile = sketch9
pad3.Length = Q("9.5 in")
body8 = doc.addObject("PartDesign::Body", "Body007")

# Sketch on YZ plane
sketch10 = doc.addObject("Sketcher::SketchObject", "Sketch009")
body8.addObject(sketch10)
sketch10.AttachmentSupport = (doc.getObject("YZ_Plane007"), [""])
sketch10.MapMode = "FlatFace"
sketch10.AttachmentOffset = App.Placement(Vector(0, 0, 116.610746), App.Rotation())
sketch10.addGeometry(Part.Circle(Vector(0, 266.7, 0), Vector(0, 0, 1), 1.6), False)
sketch10.addConstraint(Sketcher.Constraint("Diameter", 0, Q("0.125 in")))
sketch10.addConstraint(Sketcher.Constraint("DistanceY", -1, 1, 0, 3, Q("10.5 in")))
sketch10.addConstraint(Sketcher.Constraint("DistanceX", -1, 1, 0, 3, 0.006203))
pad4 = doc.addObject("PartDesign::Pad", "Pad003")
body8.addObject(pad4)
pad4.Profile = sketch10
pad4.Length = 259.555496
pad4.Reversed = True
doc.recompute()

body9 = doc.addObject("PartDesign::Body", "Body008")
body9.BaseFeature = body8
boolean = doc.addObject("PartDesign::Boolean", "Boolean")
body6.addObject(boolean)
boolean.Type = "Cut"
boolean.addObjects([body9])
doc.recompute()

boolean2 = doc.addObject("PartDesign::Boolean", "Boolean001")
body7.addObject(boolean2)
boolean2.Type = "Cut"
boolean2.addObjects([body8])
body10 = doc.addObject("PartDesign::Body", "Body009")

# Sketch on YZ plane
sketch11 = doc.addObject("Sketcher::SketchObject", "Sketch010")
body10.addObject(sketch11)
sketch11.AttachmentSupport = (doc.getObject("YZ_Plane009"), [""])
sketch11.MapMode = "FlatFace"
sketch11.AttachmentOffset = App.Placement(Vector(0, 0, 116.610746), App.Rotation())
sketch11.addGeometry(Part.Circle(Vector(0, 266.7, 0), Vector(0, 0, 1), 1.6), False)
sketch11.addGeometry(Part.Circle(Vector(0, 266.7, 0), Vector(0, 0, 1), 1.4), False)
sketch11.addConstraint(Sketcher.Constraint("Coincident", 1, 3, 0, 3))
sketch11.addConstraint(Sketcher.Constraint("Diameter", 0, Q("0.125 in")))
sketch11.addConstraint(Sketcher.Constraint("Diameter", 1, Q("0.111 in")))
sketch11.addConstraint(Sketcher.Constraint("DistanceY", -1, 1, 0, 3, Q("10.5 in")))
sketch11.addConstraint(Sketcher.Constraint("DistanceX", -1, 1, 0, 3, 0.006203))
pad5 = doc.addObject("PartDesign::Pad", "Pad004")
body10.addObject(pad5)
pad5.Profile = sketch11
pad5.Type = "TwoLengths"
pad5.Length = Q("9.5 in")
pad5.Length2 = Q("0.25 in")
pad5.Reversed = True

# Sketch on XY plane
sketch12 = doc.addObject("Sketcher::SketchObject", "Sketch011")
body10.addObject(sketch12)
sketch12.AttachmentSupport = (doc.getObject("XY_Plane009"), [""])
sketch12.MapMode = "FlatFace"
sketch12.AttachmentOffset = App.Placement(Vector(0, 0, 1.5 * 25.4), App.Rotation())
sketch12.addGeometry(Part.Circle(Vector(0, 0, 0), Vector(0, 0, 1), 0.4), False)
sketch12.addConstraint(Sketcher.Constraint("Coincident", 0, 3, -1, 1))
sketch12.addConstraint(Sketcher.Constraint("Diameter", 0, Q("0.03125 in")))
pocket3 = doc.addObject("PartDesign::Pocket", "Pocket002")
body10.addObject(pocket3)
pocket3.Profile = sketch12
pocket3.Length = Q("9 in")
pocket3.Reversed = True
body11 = doc.addObject("PartDesign::Body", "Body010")

# Sketch on XZ plane
sketch13 = doc.addObject("Sketcher::SketchObject", "Sketch012")
body11.addObject(sketch13)
sketch13.AttachmentSupport = (doc.getObject("XZ_Plane010"), [""])
sketch13.MapMode = "FlatFace"
add_polygon(sketch13, [(0, 41.6), (0, 266.7), (-1.2, 266.7), (-1.2, 265.5), (-0.1, 265.5), (-0.1, 42.9), (-1.2, 42.9), (-1.2, 41.6)])  # lines 0-7
sketch13.addConstraint(Sketcher.Constraint("Vertical", 0))
sketch13.addConstraint(Sketcher.Constraint("Horizontal", 1))
sketch13.addConstraint(Sketcher.Constraint("Vertical", 2))
sketch13.addConstraint(Sketcher.Constraint("Horizontal", 3))
sketch13.addConstraint(Sketcher.Constraint("Vertical", 4))
sketch13.addConstraint(Sketcher.Constraint("Horizontal", 5))
sketch13.addConstraint(Sketcher.Constraint("Vertical", 6))
sketch13.addConstraint(Sketcher.Constraint("Horizontal", 7))
sketch13.addConstraint(Sketcher.Constraint("PointOnObject", 0, 2, -2))
sketch13.addConstraint(Sketcher.Constraint("Vertical", 2, 2, 5, 2))
sketch13.addConstraint(Sketcher.Constraint("Equal", 7, 2))
sketch13.addConstraint(Sketcher.Constraint("Equal", 2, 6))
sketch13.addConstraint(Sketcher.Constraint("DistanceY", -1, 1, 0, 2, Q("10.5 in")))
sketch13.addConstraint(Sketcher.Constraint("DistanceY", 0, 1, 0, 2, Q("8.861 in")))
sketch13.addConstraint(Sketcher.Constraint("DistanceY", 4, 2, 4, 1, Q("8.764 in")))
sketch13.addConstraint(Sketcher.Constraint("DistanceX", 3, 1, 3, 2, Q("0.0445 in")))
revolution5 = doc.addObject("PartDesign::Revolution", "Revolution004")
body11.addObject(revolution5)
revolution5.Profile = sketch13
revolution5.ReferenceAxis = (sketch13, ["V_Axis"])
revolution5.Angle = 360
body12 = doc.addObject("PartDesign::Body", "Body011")

# Sketch on XY plane
sketch14 = doc.addObject("Sketcher::SketchObject", "Sketch013")
body12.addObject(sketch14)
sketch14.AttachmentSupport = (doc.getObject("XY_Plane011"), [""])
sketch14.MapMode = "FlatFace"
sketch14.AttachmentOffset = App.Placement(Vector(0, 0, 1.6875 * 25.4), App.Rotation())
add_polygon(sketch14, [(1.6, 3), (-1.6, 3), (-3, 0), (-1.6, -3), (1.6, -3), (3, 0)])  # lines 0-5
sketch14.addGeometry(Part.Circle(Vector(0, 0, 0), Vector(0, 0, 1), 0.5), False)  # 6
sketch14.addConstraint(Sketcher.Constraint("Horizontal", 0))
sketch14.addConstraint(Sketcher.Constraint("Horizontal", 3))
sketch14.addConstraint(Sketcher.Constraint("Coincident", 6, 3, -1, 1))
sketch14.addConstraint(Sketcher.Constraint("Symmetric", 0, 2, 3, 2, -1, 1))
sketch14.addConstraint(Sketcher.Constraint("Symmetric", 1, 2, 4, 2, -1, 1))
sketch14.addConstraint(Sketcher.Constraint("PointOnObject", 1, 2, -1))
sketch14.addConstraint(Sketcher.Constraint("Parallel", 2, 5))
sketch14.addConstraint(Sketcher.Constraint("Vertical", 0, 2, 2, 2))
sketch14.addConstraint(Sketcher.Constraint("Diameter", 6, 1.0))
sketch14.addConstraint(Sketcher.Constraint("DistanceY", -1, 1, 0, 2, 3.0))
sketch14.addConstraint(Sketcher.Constraint("DistanceX", 1, 2, -1, 1, 3.0))
sketch14.addConstraint(Sketcher.Constraint("DistanceX", 0, 2, 0, 1, 3.291503))
pad6 = doc.addObject("PartDesign::Pad", "Pad005")
body12.addObject(pad6)
pad6.Profile = sketch14
pad6.Length = 7

doc.recompute()
